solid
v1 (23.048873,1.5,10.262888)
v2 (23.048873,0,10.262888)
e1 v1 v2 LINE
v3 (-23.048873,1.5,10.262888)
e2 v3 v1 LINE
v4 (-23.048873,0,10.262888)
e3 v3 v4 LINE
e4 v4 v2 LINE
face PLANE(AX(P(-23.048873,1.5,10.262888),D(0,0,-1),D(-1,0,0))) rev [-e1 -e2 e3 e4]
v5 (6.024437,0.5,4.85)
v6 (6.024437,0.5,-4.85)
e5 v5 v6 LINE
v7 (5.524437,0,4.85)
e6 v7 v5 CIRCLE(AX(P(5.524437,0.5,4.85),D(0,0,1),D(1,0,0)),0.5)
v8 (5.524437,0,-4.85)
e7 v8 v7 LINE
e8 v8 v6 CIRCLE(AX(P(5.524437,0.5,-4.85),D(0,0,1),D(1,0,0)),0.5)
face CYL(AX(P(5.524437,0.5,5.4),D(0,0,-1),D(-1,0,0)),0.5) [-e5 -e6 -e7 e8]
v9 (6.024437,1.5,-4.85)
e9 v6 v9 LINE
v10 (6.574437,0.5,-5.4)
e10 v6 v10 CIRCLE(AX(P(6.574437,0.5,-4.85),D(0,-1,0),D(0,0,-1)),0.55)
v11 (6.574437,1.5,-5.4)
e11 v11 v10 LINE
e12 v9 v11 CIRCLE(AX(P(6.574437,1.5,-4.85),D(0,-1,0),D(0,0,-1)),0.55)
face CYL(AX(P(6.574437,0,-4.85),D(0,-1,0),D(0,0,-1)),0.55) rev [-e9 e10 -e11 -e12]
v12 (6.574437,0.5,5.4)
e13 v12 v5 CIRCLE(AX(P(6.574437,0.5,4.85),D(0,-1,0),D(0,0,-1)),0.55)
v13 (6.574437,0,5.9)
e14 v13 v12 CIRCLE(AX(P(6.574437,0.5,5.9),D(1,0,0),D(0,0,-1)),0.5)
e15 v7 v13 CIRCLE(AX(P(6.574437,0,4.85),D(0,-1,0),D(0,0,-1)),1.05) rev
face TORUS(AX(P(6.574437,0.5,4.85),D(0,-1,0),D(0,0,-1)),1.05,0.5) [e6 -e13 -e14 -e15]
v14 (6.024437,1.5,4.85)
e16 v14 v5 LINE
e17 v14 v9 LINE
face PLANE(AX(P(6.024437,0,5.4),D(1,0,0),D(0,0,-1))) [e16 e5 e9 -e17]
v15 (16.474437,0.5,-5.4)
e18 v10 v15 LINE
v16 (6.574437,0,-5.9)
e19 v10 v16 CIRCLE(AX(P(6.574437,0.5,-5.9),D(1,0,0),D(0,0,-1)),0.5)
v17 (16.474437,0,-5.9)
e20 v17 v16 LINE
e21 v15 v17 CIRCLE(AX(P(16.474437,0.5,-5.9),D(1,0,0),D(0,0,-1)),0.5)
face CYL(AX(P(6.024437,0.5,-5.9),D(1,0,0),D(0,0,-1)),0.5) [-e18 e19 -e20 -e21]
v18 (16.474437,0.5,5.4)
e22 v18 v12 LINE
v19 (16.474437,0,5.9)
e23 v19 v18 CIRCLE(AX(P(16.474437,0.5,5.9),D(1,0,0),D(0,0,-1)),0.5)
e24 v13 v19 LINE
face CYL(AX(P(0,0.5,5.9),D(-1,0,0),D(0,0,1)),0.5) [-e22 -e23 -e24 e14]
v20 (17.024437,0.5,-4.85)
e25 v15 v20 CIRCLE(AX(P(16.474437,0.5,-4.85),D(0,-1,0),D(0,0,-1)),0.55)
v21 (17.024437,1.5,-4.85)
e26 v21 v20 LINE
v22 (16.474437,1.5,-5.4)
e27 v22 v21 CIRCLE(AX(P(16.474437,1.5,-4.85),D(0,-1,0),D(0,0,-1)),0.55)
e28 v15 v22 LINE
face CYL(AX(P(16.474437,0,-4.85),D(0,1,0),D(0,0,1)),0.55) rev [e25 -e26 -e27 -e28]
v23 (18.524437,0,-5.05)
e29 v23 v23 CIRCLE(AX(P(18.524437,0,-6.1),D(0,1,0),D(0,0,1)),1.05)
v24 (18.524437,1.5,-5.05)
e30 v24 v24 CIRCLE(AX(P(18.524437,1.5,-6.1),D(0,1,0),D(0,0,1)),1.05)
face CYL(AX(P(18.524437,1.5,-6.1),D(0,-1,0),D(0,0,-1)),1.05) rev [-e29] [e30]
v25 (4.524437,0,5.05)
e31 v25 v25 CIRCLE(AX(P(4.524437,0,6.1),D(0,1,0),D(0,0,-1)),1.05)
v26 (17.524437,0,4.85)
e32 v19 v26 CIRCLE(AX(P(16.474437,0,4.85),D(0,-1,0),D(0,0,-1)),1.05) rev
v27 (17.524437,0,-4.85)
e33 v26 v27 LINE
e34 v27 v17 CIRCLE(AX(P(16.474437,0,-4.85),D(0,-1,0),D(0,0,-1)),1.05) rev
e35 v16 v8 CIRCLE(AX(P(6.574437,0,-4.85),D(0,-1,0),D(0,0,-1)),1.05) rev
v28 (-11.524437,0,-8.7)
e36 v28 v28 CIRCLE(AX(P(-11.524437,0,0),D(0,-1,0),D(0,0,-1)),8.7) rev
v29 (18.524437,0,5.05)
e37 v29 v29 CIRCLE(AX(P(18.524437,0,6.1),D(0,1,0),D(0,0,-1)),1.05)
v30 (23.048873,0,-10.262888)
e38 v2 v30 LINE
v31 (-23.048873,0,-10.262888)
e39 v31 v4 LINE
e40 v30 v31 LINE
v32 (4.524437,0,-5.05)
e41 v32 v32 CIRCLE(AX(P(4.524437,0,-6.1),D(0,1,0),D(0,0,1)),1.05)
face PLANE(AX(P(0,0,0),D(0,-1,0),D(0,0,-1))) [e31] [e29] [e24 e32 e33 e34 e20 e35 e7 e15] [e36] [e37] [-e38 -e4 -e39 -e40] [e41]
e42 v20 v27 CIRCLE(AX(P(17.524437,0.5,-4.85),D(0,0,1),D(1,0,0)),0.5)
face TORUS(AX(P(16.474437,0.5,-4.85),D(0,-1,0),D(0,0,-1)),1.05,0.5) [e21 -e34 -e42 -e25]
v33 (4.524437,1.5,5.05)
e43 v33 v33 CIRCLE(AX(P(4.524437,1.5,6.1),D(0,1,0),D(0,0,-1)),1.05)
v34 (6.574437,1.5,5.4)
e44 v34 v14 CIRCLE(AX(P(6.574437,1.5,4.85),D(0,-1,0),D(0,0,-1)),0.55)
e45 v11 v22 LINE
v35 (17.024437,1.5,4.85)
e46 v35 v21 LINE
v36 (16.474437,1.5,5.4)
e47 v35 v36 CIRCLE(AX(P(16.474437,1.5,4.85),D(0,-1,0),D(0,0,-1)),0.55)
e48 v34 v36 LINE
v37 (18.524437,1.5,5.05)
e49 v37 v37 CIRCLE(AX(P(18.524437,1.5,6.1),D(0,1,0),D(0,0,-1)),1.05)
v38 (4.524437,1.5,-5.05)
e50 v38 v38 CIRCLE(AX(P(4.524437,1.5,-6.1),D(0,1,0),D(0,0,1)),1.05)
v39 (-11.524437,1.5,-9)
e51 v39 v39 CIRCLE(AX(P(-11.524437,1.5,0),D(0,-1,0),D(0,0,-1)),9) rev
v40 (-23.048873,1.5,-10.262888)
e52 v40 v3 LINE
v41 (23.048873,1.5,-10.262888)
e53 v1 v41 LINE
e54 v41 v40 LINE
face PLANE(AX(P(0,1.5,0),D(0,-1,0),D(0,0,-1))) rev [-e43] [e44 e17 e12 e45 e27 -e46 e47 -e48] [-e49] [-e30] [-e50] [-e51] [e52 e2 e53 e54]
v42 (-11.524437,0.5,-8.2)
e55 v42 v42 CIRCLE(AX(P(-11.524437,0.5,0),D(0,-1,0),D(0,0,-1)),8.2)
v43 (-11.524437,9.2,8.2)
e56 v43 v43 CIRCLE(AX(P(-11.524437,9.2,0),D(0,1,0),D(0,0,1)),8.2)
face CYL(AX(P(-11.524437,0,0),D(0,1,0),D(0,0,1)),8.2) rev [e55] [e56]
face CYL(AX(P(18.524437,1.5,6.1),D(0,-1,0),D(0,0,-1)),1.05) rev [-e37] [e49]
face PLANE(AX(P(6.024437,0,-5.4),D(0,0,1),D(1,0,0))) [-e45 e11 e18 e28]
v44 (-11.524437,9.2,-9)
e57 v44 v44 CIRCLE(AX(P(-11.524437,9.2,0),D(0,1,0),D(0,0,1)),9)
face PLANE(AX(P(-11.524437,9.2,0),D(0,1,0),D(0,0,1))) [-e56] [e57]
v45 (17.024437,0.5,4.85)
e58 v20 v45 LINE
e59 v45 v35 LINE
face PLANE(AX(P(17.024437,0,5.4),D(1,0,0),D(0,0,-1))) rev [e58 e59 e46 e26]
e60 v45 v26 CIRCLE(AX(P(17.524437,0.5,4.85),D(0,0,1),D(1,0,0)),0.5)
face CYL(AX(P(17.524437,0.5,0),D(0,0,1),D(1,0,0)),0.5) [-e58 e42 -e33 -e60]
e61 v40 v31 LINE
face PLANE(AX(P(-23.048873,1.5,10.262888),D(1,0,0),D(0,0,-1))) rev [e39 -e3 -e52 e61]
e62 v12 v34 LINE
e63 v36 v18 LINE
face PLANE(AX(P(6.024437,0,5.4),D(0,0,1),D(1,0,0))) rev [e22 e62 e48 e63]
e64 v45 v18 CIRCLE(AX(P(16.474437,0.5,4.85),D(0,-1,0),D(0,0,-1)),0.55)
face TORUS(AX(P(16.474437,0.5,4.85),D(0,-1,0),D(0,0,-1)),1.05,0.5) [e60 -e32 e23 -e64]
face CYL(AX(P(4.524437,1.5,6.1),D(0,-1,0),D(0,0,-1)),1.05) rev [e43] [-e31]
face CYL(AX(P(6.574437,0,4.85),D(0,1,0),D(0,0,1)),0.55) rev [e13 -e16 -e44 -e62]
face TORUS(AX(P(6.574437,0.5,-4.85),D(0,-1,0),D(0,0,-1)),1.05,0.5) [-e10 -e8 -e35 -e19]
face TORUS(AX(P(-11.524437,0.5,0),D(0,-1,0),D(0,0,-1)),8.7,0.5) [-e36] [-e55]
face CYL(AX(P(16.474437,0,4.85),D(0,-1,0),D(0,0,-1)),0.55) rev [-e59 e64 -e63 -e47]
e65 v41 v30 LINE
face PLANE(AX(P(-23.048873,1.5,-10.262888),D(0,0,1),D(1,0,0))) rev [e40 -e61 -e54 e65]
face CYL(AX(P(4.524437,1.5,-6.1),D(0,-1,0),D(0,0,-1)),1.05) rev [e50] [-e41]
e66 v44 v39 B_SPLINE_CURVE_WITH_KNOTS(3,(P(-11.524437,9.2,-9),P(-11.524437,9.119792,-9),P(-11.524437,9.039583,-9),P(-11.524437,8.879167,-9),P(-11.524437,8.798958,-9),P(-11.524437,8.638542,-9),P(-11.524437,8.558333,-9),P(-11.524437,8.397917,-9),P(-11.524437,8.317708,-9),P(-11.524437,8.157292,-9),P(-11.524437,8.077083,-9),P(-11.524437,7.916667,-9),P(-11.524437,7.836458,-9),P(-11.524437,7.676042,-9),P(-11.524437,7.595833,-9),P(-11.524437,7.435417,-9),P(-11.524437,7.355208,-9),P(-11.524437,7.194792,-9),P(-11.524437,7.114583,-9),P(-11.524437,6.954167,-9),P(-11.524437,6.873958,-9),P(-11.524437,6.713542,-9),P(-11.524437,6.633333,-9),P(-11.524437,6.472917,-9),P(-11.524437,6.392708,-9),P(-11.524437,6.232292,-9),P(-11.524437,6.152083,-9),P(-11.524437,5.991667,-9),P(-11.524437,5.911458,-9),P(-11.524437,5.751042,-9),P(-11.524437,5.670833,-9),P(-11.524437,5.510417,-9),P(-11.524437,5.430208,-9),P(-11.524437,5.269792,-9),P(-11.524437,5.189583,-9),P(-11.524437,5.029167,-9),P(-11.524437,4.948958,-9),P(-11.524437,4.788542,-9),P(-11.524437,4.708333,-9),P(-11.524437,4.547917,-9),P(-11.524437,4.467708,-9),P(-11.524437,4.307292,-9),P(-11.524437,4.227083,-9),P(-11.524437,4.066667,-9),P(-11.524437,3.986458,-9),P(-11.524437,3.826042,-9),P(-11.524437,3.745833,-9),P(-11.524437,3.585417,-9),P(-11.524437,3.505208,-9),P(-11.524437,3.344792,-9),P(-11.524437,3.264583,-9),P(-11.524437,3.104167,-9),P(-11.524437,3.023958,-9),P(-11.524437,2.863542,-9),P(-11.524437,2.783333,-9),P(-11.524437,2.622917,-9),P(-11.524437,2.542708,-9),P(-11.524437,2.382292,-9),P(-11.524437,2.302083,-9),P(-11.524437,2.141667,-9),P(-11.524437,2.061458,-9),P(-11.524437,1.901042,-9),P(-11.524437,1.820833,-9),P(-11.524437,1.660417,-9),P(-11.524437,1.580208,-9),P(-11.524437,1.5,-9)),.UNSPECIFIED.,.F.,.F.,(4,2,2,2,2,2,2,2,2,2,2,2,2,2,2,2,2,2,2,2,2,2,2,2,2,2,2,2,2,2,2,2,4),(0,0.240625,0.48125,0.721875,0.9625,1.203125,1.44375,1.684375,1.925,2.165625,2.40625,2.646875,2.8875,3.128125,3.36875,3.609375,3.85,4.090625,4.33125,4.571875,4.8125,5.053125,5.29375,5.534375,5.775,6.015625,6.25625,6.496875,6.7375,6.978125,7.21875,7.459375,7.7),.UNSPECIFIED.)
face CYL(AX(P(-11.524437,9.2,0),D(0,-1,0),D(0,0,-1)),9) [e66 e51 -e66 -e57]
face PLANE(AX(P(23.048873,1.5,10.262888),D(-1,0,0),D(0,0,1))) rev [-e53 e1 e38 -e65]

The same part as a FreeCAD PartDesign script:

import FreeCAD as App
import Part
import Sketcher

V = App.Vector
Q = App.Units.Quantity


def edges_at(feature, points):
    """Names of the edges that pass closest to the given points."""
    edges = feature.Shape.Edges
    near = lambda p: min(range(len(edges)), key=lambda i: edges[i].distToShape(Part.Vertex(*p))[0])
    return sorted({f"Edge{near(p) + 1}" for p in points})


def add_polygon(sketch, points):
    """Adds a closed chain of lines whose ends are joined by coincident constraints."""
    first, n = sketch.GeometryCount, len(points)
    for a, b in zip(points, points[1:] + points[:1]):
        sketch.addGeometry(Part.LineSegment(App.Vector(*a, 0), App.Vector(*b, 0)), False)
    for i in range(n):
        sketch.addConstraint(Sketcher.Constraint("Coincident", first + i, 2, first + (i + 1) % n, 1))

doc = App.newDocument("Part")
params = doc.addObject("Spreadsheet::Sheet", "Params")
for row, (alias, value) in enumerate([
    ("sketch1_diameter", "2.1 mm"),
    ("pad1_length", "1.5 mm"),
    ("sketch2_width", "11 mm"),
    ("sketch2_height", "10.8 mm"),
    ("pocket1_length", "1.5 mm"),
    ("fillet_radius", "0.55 mm"),
    ("sketch3_diameter", "18 mm"),
    ("pad2_length", "7.7 mm"),
    ("sketch4_diameter", "16.4 mm"),
    ("fillet2_radius", "0.5 mm"),
    ("fillet3_radius", "0.5 mm"),
], start=1):
    params.set(f"A{row}", alias)
    params.set(f"B{row}", "=" + value)
    params.setAlias(f"B{row}", alias)

body = doc.addObject("PartDesign::Body", "Body")

# Sketch on XZ plane
sketch1 = body.newObject("Sketcher::SketchObject", "Sketch")
sketch1.AttachmentSupport = (doc.getObject("XZ_Plane"), [""])
sketch1.MapMode = "FlatFace"
add_polygon(sketch1, [(-23.048873, -10.262888), (-23.048873, 10.262888), (23.048873, 10.262888), (23.048873, -10.262888)])  # lines 0-3
sketch1.addGeometry(Part.Circle(V(4.524437, 6.1, 0), V(0, 0, 1), 1.05), False)  # 4
sketch1.addGeometry(Part.Circle(V(18.524437, 6.1, 0), V(0, 0, 1), 1.05), False)  # 5
sketch1.addGeometry(Part.Circle(V(4.524437, -6.1, 0), V(0, 0, 1), 1.05), False)  # 6
sketch1.addGeometry(Part.Circle(V(18.524437, -6.1, 0), V(0, 0, 1), 1.05), False)  # 7
sketch1.addConstraint(Sketcher.Constraint("Vertical", 0))
sketch1.addConstraint(Sketcher.Constraint("Horizontal", 1))
sketch1.addConstraint(Sketcher.Constraint("Vertical", 2))
sketch1.addConstraint(Sketcher.Constraint("Horizontal", 3))
sketch1.addConstraint(Sketcher.Constraint("Equal", 4, 5))
sketch1.addConstraint(Sketcher.Constraint("Equal", 5, 6))
sketch1.addConstraint(Sketcher.Constraint("Equal", 6, 7))
sketch1.addConstraint(Sketcher.Constraint("Symmetric", 0, 2, 2, 2, -1, 1))
sketch1.addConstraint(Sketcher.Constraint("Symmetric", 4, 3, 6, 3, -1))
sketch1.addConstraint(Sketcher.Constraint("Symmetric", 5, 3, 7, 3, -1))
sketch1.addConstraint(Sketcher.Constraint("Horizontal", 4, 3, 5, 3))
sketch1.addConstraint(Sketcher.Constraint("Diameter", 4, Q("2.1 mm")))
sketch1.addConstraint(Sketcher.Constraint("DistanceX", 4, 3, 5, 3, Q("14 mm")))
sketch1.addConstraint(Sketcher.Constraint("DistanceY", -1, 1, 4, 3, Q("6.1 mm")))
sketch1.addConstraint(Sketcher.Constraint("DistanceX", 1, 1, 1, 2, Q("46.097746 mm")))
sketch1.addConstraint(Sketcher.Constraint("DistanceY", 0, 1, 0, 2, Q("20.525775 mm")))
sketch1.addConstraint(Sketcher.Constraint("DistanceX", 0, 2, 4, 3, Q("27.57331 mm")))
sketch1.setExpression("Constraints[15]", "Params.sketch1_diameter")
pad1 = body.newObject("PartDesign::Pad", "Pad")
pad1.Profile = sketch1
pad1.setExpression("Length", "Params.pad1_length")
pad1.Reversed = True

# Sketch on XZ plane
sketch2 = body.newObject("Sketcher::SketchObject", "Sketch001")
sketch2.AttachmentSupport = (doc.getObject("XZ_Plane"), [""])
sketch2.MapMode = "FlatFace"
sketch2.AttachmentOffset = App.Placement(V(0, 0, -1.5), App.Rotation())
add_polygon(sketch2, [(6.024437, -5.4), (6.024437, 5.4), (17.024437, 5.4), (17.024437, -5.4)])  # lines 0-3
sketch2.addConstraint(Sketcher.Constraint("Vertical", 0))
sketch2.addConstraint(Sketcher.Constraint("Horizontal", 1))
sketch2.addConstraint(Sketcher.Constraint("Vertical", 2))
sketch2.addConstraint(Sketcher.Constraint("Horizontal", 3))
sketch2.addConstraint(Sketcher.Constraint("DistanceX", 1, 1, 1, 2, Q("11 mm")))
sketch2.addConstraint(Sketcher.Constraint("DistanceY", 0, 1, 0, 2, Q("10.8 mm")))
sketch2.addConstraint(Sketcher.Constraint("DistanceY", -1, 1, 0, 2, Q("5.4 mm")))
sketch2.addConstraint(Sketcher.Constraint("DistanceX", -1, 1, 0, 2, Q("6.024437 mm")))
sketch2.setExpression("Constraints[8]", "Params.sketch2_width")
sketch2.setExpression("Constraints[9]", "Params.sketch2_height")
pocket1 = body.newObject("PartDesign::Pocket", "Pocket")
pocket1.Profile = sketch2
pocket1.setExpression("Length", "Params.pocket1_length")
pocket1.Reversed = True
doc.recompute()

fillet = body.newObject("PartDesign::Fillet", "Fillet")
fillet.Base = (pocket1, edges_at(pocket1, [
    (6.024, 0.75, -5.4),
    (17.024, 0.75, -5.4),
    (17.024, 0.75, 5.4),
    (6.024, 0.75, 5.4),
]))
fillet.setExpression("Radius", "Params.fillet_radius")

# Sketch on XZ plane
sketch3 = body.newObject("Sketcher::SketchObject", "Sketch002")
sketch3.AttachmentSupport = (doc.getObject("XZ_Plane"), [""])
sketch3.MapMode = "FlatFace"
sketch3.AttachmentOffset = App.Placement(V(0, 0, -1.5), App.Rotation())
sketch3.addGeometry(Part.Circle(V(-11.524437, 0, 0), V(0, 0, 1), 9), False)
sketch3.addConstraint(Sketcher.Constraint("PointOnObject", 0, 3, -1))
sketch3.addConstraint(Sketcher.Constraint("Diameter", 0, Q("18 mm")))
sketch3.addConstraint(Sketcher.Constraint("DistanceX", 0, 3, -1, 1, Q("11.524437 mm")))
sketch3.setExpression("Constraints[1]", "Params.sketch3_diameter")
pad2 = body.newObject("PartDesign::Pad", "Pad001")
pad2.Profile = sketch3
pad2.setExpression("Length", "Params.pad2_length")
pad2.Reversed = True

# Sketch on XZ plane
sketch4 = body.newObject("Sketcher::SketchObject", "Sketch003")
sketch4.AttachmentSupport = (doc.getObject("XZ_Plane"), [""])
sketch4.MapMode = "FlatFace"
sketch4.AttachmentOffset = App.Placement(V(0, 0, -9.2), App.Rotation())
sketch4.addGeometry(Part.Circle(V(-11.524437, 0, 0), V(0, 0, 1), 8.2), False)
sketch4.addConstraint(Sketcher.Constraint("PointOnObject", 0, 3, -1))
sketch4.addConstraint(Sketcher.Constraint("Diameter", 0, Q("16.4 mm")))
sketch4.addConstraint(Sketcher.Constraint("DistanceX", 0, 3, -1, 1, Q("11.524437 mm")))
sketch4.setExpression("Constraints[1]", "Params.sketch4_diameter")
pocket2 = body.newObject("PartDesign::Pocket", "Pocket001")
pocket2.Profile = sketch4
pocket2.Type = "ThroughAll"
pocket2.Reversed = True
doc.recompute()

fillet2 = body.newObject("PartDesign::Fillet", "Fillet001")
fillet2.Base = (pocket2, edges_at(pocket2, [
    (17.024, 0, 0),
    (11.524, 0, 5.4),
    (6.024, 0, 0),
    (11.524, 0, -5.4),
    (16.863, 0, 5.239),
    (6.186, 0, 5.239),
    (16.863, 0, -5.239),
    (6.186, 0, -5.239),
]))
fillet2.setExpression("Radius", "Params.fillet2_radius")
doc.recompute()

fillet3 = body.newObject("PartDesign::Fillet", "Fillet002")
fillet3.Base = (fillet2, edges_at(fillet2, [(-11.524, 0, -8.2)]))
fillet3.setExpression("Radius", "Params.fillet3_radius")

doc.recompute()
